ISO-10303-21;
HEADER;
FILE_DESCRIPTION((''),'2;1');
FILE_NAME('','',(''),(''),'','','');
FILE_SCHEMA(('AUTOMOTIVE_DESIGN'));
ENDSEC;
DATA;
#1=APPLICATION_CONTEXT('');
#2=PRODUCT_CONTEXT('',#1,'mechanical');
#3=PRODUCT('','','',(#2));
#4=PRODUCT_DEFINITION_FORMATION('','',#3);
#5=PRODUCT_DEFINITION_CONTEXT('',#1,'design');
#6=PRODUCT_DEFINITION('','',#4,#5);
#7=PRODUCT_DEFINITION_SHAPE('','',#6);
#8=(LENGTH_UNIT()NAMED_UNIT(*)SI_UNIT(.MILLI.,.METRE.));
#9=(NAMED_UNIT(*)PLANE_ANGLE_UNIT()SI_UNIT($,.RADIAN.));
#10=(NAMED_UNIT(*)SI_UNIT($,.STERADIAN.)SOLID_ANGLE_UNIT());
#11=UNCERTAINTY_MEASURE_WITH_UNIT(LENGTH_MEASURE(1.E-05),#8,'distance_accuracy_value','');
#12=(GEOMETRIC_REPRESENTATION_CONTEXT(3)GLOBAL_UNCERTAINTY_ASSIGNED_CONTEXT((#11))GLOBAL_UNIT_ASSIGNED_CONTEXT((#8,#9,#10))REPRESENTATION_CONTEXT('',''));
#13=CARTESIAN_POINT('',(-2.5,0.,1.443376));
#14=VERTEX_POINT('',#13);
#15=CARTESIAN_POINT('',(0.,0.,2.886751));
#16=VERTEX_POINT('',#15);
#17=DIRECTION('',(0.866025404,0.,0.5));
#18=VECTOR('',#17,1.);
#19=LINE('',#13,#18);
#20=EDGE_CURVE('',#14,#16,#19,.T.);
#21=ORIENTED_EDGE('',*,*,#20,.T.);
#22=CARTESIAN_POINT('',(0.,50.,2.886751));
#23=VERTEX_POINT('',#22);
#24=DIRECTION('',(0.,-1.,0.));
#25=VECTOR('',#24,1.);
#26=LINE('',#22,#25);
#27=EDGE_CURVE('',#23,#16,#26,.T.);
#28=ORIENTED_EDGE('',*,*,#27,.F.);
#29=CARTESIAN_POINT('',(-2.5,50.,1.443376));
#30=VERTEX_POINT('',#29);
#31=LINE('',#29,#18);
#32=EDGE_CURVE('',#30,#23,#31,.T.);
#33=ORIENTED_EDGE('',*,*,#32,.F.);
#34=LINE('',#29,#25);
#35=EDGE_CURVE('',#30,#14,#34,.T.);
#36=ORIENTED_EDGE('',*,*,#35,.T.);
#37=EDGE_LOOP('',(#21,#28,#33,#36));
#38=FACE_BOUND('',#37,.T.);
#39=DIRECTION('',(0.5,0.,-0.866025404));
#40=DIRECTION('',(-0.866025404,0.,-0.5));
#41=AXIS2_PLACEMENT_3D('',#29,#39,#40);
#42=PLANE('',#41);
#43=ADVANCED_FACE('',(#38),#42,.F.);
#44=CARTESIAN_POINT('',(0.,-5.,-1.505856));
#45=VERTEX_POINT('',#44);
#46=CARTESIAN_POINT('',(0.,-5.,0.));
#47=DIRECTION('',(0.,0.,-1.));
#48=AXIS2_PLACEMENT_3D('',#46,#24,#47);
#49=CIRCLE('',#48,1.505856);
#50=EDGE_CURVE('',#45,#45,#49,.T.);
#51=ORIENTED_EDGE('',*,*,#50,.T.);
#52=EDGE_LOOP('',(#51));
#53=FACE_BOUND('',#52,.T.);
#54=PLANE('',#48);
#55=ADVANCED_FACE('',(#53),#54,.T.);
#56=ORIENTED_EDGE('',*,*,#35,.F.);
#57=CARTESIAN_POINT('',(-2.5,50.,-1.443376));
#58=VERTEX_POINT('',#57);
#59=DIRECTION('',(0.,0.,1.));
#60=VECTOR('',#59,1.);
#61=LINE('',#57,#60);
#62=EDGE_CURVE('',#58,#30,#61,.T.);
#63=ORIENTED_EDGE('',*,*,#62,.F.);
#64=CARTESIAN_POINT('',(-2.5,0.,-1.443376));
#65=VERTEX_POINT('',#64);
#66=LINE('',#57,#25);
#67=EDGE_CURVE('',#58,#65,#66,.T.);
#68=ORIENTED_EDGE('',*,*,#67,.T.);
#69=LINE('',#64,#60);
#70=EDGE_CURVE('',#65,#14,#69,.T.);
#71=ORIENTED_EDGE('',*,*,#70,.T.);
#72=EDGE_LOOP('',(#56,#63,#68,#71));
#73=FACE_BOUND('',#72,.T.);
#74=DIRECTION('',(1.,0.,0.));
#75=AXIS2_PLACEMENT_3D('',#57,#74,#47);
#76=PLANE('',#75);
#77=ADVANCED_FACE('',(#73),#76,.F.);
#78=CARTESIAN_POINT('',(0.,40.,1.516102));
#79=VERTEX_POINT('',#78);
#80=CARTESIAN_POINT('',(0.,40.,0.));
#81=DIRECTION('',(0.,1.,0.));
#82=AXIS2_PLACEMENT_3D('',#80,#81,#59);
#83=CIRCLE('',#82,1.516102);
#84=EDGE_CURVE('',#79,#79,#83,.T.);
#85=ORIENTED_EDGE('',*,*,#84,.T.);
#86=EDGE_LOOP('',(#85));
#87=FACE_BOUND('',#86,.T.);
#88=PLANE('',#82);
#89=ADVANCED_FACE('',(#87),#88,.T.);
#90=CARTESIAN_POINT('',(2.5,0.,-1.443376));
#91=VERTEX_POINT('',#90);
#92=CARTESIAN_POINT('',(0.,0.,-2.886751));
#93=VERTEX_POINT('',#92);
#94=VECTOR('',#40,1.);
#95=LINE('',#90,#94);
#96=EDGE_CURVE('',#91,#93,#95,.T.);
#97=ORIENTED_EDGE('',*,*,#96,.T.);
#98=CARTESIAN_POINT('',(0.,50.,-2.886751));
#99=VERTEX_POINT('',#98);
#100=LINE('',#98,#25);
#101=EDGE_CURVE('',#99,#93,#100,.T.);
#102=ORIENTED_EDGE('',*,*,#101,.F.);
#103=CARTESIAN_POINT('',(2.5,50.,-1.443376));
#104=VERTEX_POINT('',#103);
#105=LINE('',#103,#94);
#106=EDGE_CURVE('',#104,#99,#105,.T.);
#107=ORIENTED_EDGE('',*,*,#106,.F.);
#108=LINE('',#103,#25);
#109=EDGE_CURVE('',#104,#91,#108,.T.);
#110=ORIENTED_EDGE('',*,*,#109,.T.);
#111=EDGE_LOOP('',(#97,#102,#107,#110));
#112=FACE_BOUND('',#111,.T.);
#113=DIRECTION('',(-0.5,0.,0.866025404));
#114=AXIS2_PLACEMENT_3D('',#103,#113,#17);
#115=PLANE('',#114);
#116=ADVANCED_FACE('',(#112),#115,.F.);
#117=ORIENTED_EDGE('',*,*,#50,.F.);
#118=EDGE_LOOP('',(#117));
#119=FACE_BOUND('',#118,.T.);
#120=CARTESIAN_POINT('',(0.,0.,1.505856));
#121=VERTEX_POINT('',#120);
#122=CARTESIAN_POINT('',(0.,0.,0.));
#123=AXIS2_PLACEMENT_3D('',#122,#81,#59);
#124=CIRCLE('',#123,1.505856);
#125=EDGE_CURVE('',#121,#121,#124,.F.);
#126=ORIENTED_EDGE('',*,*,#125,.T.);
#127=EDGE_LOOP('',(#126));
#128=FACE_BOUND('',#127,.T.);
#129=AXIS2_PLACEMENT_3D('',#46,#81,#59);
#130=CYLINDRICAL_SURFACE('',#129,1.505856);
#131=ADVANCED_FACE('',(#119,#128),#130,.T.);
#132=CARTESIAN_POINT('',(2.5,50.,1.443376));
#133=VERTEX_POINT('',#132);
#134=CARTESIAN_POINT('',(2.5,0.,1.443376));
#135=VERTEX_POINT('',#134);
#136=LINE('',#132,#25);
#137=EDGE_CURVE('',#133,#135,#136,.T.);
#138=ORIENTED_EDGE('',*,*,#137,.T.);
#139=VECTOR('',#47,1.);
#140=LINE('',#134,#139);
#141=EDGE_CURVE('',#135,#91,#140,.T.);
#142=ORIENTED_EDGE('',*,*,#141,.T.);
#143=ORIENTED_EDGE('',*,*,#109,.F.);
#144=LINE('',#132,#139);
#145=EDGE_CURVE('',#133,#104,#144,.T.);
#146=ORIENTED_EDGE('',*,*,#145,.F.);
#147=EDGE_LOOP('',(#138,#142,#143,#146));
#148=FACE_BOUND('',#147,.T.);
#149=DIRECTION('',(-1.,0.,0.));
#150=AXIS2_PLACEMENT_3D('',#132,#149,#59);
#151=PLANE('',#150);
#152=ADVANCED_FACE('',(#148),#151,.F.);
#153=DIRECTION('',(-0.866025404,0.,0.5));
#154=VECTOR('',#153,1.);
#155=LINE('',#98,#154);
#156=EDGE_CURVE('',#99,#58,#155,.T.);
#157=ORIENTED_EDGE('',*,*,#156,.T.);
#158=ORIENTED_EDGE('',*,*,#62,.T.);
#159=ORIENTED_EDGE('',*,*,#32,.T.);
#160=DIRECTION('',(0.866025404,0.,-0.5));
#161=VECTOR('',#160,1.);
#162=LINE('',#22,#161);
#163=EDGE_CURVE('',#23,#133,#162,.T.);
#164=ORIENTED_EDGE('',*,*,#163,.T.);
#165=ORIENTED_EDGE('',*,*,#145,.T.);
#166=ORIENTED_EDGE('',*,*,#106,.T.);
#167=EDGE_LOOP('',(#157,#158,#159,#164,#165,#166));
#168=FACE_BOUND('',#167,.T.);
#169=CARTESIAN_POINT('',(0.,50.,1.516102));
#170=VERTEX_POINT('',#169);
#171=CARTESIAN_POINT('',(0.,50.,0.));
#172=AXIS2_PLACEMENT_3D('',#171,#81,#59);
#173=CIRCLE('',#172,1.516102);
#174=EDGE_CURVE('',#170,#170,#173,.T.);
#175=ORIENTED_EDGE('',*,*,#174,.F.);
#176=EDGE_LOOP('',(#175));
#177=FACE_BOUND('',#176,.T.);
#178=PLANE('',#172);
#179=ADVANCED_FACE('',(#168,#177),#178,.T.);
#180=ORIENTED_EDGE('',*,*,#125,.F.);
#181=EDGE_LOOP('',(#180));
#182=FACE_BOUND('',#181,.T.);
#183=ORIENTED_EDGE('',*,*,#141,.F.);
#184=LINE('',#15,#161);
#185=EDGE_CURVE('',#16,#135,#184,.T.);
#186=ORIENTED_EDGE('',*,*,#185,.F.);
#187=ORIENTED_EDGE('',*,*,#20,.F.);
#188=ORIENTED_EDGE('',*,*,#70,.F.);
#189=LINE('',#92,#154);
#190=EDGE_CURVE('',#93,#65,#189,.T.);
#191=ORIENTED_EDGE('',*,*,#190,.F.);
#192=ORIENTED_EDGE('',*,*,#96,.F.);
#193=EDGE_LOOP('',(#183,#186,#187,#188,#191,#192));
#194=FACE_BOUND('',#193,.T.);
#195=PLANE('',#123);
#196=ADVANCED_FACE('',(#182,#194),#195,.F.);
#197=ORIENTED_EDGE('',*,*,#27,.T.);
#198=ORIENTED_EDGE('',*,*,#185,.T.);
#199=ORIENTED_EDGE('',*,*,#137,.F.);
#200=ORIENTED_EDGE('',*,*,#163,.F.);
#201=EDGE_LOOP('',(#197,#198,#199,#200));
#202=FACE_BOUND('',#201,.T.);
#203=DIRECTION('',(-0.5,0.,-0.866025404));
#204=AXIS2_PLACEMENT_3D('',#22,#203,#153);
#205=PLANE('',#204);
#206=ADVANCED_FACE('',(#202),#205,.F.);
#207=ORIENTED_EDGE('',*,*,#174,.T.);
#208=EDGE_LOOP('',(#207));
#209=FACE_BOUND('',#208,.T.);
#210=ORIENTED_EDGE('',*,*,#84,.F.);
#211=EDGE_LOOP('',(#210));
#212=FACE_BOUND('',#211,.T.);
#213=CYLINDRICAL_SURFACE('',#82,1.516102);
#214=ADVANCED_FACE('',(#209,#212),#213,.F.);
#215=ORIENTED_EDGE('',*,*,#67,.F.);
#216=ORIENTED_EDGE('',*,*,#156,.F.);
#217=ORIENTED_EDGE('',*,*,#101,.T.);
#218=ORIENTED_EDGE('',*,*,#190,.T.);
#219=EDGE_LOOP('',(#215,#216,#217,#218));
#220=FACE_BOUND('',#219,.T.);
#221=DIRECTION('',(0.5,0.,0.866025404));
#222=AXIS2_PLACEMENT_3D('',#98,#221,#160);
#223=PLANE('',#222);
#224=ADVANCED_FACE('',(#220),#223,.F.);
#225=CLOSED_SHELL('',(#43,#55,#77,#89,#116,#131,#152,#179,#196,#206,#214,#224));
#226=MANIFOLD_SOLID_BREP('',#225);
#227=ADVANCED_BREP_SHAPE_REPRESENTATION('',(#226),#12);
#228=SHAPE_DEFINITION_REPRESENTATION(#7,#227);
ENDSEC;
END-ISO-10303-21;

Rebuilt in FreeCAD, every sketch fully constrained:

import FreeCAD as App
import Part
import Sketcher
from FreeCAD import Vector
Q = App.Units.Quantity

doc = App.newDocument("Part")
params = doc.addObject("Spreadsheet::Sheet", "Params")
for row, (alias, value) in enumerate([
    ("pad1_length", "50 mm"),
    ("pocket1_length", "10 mm"),
    ("pad2_length", "5 mm"),
], start=1):
    params.set(f"A{row}", alias)
    params.set(f"B{row}", "=" + value)
    params.setAlias(f"B{row}", alias)

body = doc.addObject("PartDesign::Body", "Body")

sketch1 = body.newObject("Sketcher::SketchObject", "Sketch")
sketch1.AttachmentSupport = (doc.getObject("XZ_Plane"), [""])
sketch1.MapMode = "FlatFace"
sketch1.addGeometry([
    Part.LineSegment(Vector(0, 2.9, 0), Vector(2.5, 1.4, 0)),
    Part.LineSegment(Vector(2.5, 1.4, 0), Vector(2.5, -1.4, 0)),
    Part.LineSegment(Vector(2.5, -1.4, 0), Vector(0, -2.9, 0)),
    Part.LineSegment(Vector(0, -2.9, 0), Vector(-2.5, -1.4, 0)),
    Part.LineSegment(Vector(-2.5, -1.4, 0), Vector(-2.5, 1.4, 0)),
    Part.LineSegment(Vector(-2.5, 1.4, 0), Vector(0, 2.9, 0)),
], False)
sketch1.addConstraint([
    Sketcher.Constraint("Coincident", 0, 2, 1, 1),
    Sketcher.Constraint("Coincident", 1, 2, 2, 1),
    Sketcher.Constraint("Coincident", 2, 2, 3, 1),
    Sketcher.Constraint("Coincident", 3, 2, 4, 1),
    Sketcher.Constraint("Coincident", 4, 2, 5, 1),
    Sketcher.Constraint("Coincident", 5, 2, 0, 1),
    Sketcher.Constraint("Vertical", 1),
    Sketcher.Constraint("Vertical", 4),
    Sketcher.Constraint("Symmetric", 0, 2, 3, 2, -1, 1),
    Sketcher.Constraint("Symmetric", 2, 2, 5, 2, -1, 1),
    Sketcher.Constraint("PointOnObject", 2, 2, -2),
    Sketcher.Constraint("Parallel", 2, 5),
    Sketcher.Constraint("Horizontal", 1, 2, 3, 2),
    Sketcher.Constraint("Angle", 0, Q("-30 deg")),
    Sketcher.Constraint("DistanceX", 3, 2, 1, 2, 5.0),
    Sketcher.Constraint("DistanceY", 1, 2, 1, 1, 2.886751),
])
pad1 = body.newObject("PartDesign::Pad", "Pad")
pad1.Profile = sketch1
pad1.setExpression("Length", "Params.pad1_length")
pad1.Reversed = True

sketch2 = body.newObject("Sketcher::SketchObject", "Sketch001")
sketch2.AttachmentSupport = (doc.getObject("XZ_Plane"), [""])
sketch2.MapMode = "FlatFace"
sketch2.AttachmentOffset = App.Placement(Vector(0, 0, -50), App.Rotation())
sketch2.addGeometry(Part.Circle(Vector(0, 0, 0), Vector(0, 0, 1), 1.5), False)
sketch2.addConstraint([
    Sketcher.Constraint("Coincident", 0, 3, -1, 1),
    Sketcher.Constraint("Diameter", 0, 3.032205),
])
pocket1 = body.newObject("PartDesign::Pocket", "Pocket")
pocket1.Profile = sketch2
pocket1.setExpression("Length", "Params.pocket1_length")
pocket1.Reversed = True

sketch3 = body.newObject("Sketcher::SketchObject", "Sketch002")
sketch3.AttachmentSupport = (doc.getObject("XZ_Plane"), [""])
sketch3.MapMode = "FlatFace"
sketch3.addGeometry(Part.Circle(Vector(0, 0, 0), Vector(0, 0, 1), 1.5), False)
sketch3.addConstraint([
    Sketcher.Constraint("Coincident", 0, 3, -1, 1),
    Sketcher.Constraint("Diameter", 0, 3.011712),
])
pad2 = body.newObject("PartDesign::Pad", "Pad001")
pad2.Profile = sketch3
pad2.setExpression("Length", "Params.pad2_length")

doc.recompute()
